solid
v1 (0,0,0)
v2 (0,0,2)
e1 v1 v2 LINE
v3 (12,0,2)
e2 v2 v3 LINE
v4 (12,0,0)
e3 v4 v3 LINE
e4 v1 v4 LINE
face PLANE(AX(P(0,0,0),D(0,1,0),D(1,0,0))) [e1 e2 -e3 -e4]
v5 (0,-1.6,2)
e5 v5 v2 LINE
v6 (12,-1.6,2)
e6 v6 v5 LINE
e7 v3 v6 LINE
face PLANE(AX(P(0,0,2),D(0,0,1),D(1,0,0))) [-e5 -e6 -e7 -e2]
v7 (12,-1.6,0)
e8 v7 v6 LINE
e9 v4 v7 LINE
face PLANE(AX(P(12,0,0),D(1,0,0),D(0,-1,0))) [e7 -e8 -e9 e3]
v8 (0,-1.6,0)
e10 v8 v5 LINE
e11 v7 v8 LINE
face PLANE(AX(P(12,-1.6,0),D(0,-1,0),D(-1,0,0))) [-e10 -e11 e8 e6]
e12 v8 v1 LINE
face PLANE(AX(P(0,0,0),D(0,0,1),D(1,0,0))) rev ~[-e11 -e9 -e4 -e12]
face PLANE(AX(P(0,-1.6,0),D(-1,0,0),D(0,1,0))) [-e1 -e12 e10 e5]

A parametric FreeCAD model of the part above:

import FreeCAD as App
import Part
import Sketcher

doc = App.newDocument("Part")
body = doc.addObject("PartDesign::Body", "Body")

sketch1 = body.newObject("Sketcher::SketchObject", "Sketch")
sketch1.AttachmentSupport = (doc.getObject("XY_Plane"), [""])
sketch1.MapMode = "FlatFace"
sketch1.addGeometry(Part.LineSegment(App.Vector(12, 0, 0), App.Vector(0, 0, 0)), False)
sketch1.addGeometry(Part.LineSegment(App.Vector(0, 0, 0), App.Vector(0, -1.6, 0)), False)
sketch1.addGeometry(Part.LineSegment(App.Vector(0, -1.6, 0), App.Vector(12, -1.6, 0)), False)
sketch1.addGeometry(Part.LineSegment(App.Vector(12, -1.6, 0), App.Vector(12, 0, 0)), False)
sketch1.addConstraint(Sketcher.Constraint("Coincident", 0, 2, 1, 1))
sketch1.addConstraint(Sketcher.Constraint("Coincident", 1, 2, 2, 1))
sketch1.addConstraint(Sketcher.Constraint("Coincident", 2, 2, 3, 1))
sketch1.addConstraint(Sketcher.Constraint("Coincident", 3, 2, 0, 1))
sketch1.addConstraint(Sketcher.Constraint("Horizontal", 0))
sketch1.addConstraint(Sketcher.Constraint("Vertical", 1))
sketch1.addConstraint(Sketcher.Constraint("Horizontal", 2))
sketch1.addConstraint(Sketcher.Constraint("Vertical", 3))
sketch1.addConstraint(Sketcher.Constraint("Coincident", 0, 2, -1, 1))
sketch1.addConstraint(Sketcher.Constraint("DistanceX", 0, 2, 0, 1, 12.0))
sketch1.addConstraint(Sketcher.Constraint("DistanceY", 1, 2, 1, 1, 1.6))
pad1 = body.newObject("PartDesign::Pad", "Pad")
pad1.Profile = sketch1
pad1.Length = 2

doc.recompute()
